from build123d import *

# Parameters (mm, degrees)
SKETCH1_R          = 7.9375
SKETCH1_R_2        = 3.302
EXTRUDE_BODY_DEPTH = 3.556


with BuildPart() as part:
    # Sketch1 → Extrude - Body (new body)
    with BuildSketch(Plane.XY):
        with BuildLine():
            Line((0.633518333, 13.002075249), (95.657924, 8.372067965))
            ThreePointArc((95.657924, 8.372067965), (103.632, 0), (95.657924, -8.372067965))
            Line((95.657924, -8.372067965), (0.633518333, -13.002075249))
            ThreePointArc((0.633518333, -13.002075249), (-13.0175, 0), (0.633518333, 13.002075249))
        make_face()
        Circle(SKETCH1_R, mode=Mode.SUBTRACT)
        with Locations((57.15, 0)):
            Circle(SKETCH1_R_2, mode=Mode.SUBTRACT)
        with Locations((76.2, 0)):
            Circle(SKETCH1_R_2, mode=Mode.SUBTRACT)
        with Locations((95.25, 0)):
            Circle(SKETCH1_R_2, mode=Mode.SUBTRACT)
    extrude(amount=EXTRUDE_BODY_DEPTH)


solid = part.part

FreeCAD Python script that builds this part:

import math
import FreeCAD as App
import Part
import Sketcher

V = App.Vector
Q = App.Units.Quantity

doc = App.newDocument("Part")
body = doc.addObject("PartDesign::Body", "Body")

# Sketch on XY plane
sketch1 = body.newObject("Sketcher::SketchObject", "Sketch")
sketch1.AttachmentSupport = (doc.getObject("XY_Plane"), [""])
sketch1.MapMode = "FlatFace"
sketch1.addGeometry([
    Part.LineSegment(V(95.7, 8.4, 0), V(0.6, 13, 0)),  # 0
    Part.ArcOfCircle(Part.Circle(V(0, 0, 0), V(0, 0, 1), 13), math.radians(87), math.radians(273)),  # 1
    Part.LineSegment(V(0.6, -13, 0), V(95.7, -8.4, 0)),  # 2
    Part.ArcOfCircle(Part.Circle(V(95.2, 0, 0), V(0, 0, 1), 8.4), math.radians(-87), math.radians(87)),  # 3
    Part.Circle(V(95.2, 0, 0), V(0, 0, 1), 3.3),  # 4
    Part.Circle(V(76.2, 0, 0), V(0, 0, 1), 3.3),  # 5
    Part.Circle(V(57.1, 0, 0), V(0, 0, 1), 3.3),  # 6
    Part.Circle(V(0, 0, 0), V(0, 0, 1), 7.9),  # 7
], False)
sketch1.addConstraint([
    Sketcher.Constraint("Tangent", 0, 2, 1, 1),
    Sketcher.Constraint("Tangent", 1, 2, 2, 1),
    Sketcher.Constraint("Tangent", 2, 2, 3, 1),
    Sketcher.Constraint("Tangent", 3, 2, 0, 1),
    Sketcher.Constraint("Coincident", 1, 3, -1, 1),
    Sketcher.Constraint("Coincident", 7, 3, -1, 1),
    Sketcher.Constraint("Coincident", 4, 3, 3, 3),
    Sketcher.Constraint("Equal", 4, 5),
    Sketcher.Constraint("Equal", 5, 6),
    Sketcher.Constraint("PointOnObject", 3, 3, -1),
    Sketcher.Constraint("PointOnObject", 5, 3, -1),
    Sketcher.Constraint("PointOnObject", 6, 3, -1),
    Sketcher.Constraint("Diameter", 4, Q("0.26 in")),
    Sketcher.Constraint("Radius", 3, Q("0.33 in")),
    Sketcher.Constraint("Diameter", 7, Q("0.625 in")),
    Sketcher.Constraint("DistanceX", -1, 1, 5, 3, Q("3 in")),
    Sketcher.Constraint("Radius", 1, Q("0.5125 in")),
    Sketcher.Constraint("DistanceX", 6, 3, 3, 3, Q("1.5 in")),
    Sketcher.Constraint("DistanceX", -1, 1, 3, 3, Q("3.75 in")),
])
pad1 = body.newObject("PartDesign::Pad", "Pad")
pad1.Profile = sketch1
pad1.Length = Q("0.14 in")

doc.recompute()
